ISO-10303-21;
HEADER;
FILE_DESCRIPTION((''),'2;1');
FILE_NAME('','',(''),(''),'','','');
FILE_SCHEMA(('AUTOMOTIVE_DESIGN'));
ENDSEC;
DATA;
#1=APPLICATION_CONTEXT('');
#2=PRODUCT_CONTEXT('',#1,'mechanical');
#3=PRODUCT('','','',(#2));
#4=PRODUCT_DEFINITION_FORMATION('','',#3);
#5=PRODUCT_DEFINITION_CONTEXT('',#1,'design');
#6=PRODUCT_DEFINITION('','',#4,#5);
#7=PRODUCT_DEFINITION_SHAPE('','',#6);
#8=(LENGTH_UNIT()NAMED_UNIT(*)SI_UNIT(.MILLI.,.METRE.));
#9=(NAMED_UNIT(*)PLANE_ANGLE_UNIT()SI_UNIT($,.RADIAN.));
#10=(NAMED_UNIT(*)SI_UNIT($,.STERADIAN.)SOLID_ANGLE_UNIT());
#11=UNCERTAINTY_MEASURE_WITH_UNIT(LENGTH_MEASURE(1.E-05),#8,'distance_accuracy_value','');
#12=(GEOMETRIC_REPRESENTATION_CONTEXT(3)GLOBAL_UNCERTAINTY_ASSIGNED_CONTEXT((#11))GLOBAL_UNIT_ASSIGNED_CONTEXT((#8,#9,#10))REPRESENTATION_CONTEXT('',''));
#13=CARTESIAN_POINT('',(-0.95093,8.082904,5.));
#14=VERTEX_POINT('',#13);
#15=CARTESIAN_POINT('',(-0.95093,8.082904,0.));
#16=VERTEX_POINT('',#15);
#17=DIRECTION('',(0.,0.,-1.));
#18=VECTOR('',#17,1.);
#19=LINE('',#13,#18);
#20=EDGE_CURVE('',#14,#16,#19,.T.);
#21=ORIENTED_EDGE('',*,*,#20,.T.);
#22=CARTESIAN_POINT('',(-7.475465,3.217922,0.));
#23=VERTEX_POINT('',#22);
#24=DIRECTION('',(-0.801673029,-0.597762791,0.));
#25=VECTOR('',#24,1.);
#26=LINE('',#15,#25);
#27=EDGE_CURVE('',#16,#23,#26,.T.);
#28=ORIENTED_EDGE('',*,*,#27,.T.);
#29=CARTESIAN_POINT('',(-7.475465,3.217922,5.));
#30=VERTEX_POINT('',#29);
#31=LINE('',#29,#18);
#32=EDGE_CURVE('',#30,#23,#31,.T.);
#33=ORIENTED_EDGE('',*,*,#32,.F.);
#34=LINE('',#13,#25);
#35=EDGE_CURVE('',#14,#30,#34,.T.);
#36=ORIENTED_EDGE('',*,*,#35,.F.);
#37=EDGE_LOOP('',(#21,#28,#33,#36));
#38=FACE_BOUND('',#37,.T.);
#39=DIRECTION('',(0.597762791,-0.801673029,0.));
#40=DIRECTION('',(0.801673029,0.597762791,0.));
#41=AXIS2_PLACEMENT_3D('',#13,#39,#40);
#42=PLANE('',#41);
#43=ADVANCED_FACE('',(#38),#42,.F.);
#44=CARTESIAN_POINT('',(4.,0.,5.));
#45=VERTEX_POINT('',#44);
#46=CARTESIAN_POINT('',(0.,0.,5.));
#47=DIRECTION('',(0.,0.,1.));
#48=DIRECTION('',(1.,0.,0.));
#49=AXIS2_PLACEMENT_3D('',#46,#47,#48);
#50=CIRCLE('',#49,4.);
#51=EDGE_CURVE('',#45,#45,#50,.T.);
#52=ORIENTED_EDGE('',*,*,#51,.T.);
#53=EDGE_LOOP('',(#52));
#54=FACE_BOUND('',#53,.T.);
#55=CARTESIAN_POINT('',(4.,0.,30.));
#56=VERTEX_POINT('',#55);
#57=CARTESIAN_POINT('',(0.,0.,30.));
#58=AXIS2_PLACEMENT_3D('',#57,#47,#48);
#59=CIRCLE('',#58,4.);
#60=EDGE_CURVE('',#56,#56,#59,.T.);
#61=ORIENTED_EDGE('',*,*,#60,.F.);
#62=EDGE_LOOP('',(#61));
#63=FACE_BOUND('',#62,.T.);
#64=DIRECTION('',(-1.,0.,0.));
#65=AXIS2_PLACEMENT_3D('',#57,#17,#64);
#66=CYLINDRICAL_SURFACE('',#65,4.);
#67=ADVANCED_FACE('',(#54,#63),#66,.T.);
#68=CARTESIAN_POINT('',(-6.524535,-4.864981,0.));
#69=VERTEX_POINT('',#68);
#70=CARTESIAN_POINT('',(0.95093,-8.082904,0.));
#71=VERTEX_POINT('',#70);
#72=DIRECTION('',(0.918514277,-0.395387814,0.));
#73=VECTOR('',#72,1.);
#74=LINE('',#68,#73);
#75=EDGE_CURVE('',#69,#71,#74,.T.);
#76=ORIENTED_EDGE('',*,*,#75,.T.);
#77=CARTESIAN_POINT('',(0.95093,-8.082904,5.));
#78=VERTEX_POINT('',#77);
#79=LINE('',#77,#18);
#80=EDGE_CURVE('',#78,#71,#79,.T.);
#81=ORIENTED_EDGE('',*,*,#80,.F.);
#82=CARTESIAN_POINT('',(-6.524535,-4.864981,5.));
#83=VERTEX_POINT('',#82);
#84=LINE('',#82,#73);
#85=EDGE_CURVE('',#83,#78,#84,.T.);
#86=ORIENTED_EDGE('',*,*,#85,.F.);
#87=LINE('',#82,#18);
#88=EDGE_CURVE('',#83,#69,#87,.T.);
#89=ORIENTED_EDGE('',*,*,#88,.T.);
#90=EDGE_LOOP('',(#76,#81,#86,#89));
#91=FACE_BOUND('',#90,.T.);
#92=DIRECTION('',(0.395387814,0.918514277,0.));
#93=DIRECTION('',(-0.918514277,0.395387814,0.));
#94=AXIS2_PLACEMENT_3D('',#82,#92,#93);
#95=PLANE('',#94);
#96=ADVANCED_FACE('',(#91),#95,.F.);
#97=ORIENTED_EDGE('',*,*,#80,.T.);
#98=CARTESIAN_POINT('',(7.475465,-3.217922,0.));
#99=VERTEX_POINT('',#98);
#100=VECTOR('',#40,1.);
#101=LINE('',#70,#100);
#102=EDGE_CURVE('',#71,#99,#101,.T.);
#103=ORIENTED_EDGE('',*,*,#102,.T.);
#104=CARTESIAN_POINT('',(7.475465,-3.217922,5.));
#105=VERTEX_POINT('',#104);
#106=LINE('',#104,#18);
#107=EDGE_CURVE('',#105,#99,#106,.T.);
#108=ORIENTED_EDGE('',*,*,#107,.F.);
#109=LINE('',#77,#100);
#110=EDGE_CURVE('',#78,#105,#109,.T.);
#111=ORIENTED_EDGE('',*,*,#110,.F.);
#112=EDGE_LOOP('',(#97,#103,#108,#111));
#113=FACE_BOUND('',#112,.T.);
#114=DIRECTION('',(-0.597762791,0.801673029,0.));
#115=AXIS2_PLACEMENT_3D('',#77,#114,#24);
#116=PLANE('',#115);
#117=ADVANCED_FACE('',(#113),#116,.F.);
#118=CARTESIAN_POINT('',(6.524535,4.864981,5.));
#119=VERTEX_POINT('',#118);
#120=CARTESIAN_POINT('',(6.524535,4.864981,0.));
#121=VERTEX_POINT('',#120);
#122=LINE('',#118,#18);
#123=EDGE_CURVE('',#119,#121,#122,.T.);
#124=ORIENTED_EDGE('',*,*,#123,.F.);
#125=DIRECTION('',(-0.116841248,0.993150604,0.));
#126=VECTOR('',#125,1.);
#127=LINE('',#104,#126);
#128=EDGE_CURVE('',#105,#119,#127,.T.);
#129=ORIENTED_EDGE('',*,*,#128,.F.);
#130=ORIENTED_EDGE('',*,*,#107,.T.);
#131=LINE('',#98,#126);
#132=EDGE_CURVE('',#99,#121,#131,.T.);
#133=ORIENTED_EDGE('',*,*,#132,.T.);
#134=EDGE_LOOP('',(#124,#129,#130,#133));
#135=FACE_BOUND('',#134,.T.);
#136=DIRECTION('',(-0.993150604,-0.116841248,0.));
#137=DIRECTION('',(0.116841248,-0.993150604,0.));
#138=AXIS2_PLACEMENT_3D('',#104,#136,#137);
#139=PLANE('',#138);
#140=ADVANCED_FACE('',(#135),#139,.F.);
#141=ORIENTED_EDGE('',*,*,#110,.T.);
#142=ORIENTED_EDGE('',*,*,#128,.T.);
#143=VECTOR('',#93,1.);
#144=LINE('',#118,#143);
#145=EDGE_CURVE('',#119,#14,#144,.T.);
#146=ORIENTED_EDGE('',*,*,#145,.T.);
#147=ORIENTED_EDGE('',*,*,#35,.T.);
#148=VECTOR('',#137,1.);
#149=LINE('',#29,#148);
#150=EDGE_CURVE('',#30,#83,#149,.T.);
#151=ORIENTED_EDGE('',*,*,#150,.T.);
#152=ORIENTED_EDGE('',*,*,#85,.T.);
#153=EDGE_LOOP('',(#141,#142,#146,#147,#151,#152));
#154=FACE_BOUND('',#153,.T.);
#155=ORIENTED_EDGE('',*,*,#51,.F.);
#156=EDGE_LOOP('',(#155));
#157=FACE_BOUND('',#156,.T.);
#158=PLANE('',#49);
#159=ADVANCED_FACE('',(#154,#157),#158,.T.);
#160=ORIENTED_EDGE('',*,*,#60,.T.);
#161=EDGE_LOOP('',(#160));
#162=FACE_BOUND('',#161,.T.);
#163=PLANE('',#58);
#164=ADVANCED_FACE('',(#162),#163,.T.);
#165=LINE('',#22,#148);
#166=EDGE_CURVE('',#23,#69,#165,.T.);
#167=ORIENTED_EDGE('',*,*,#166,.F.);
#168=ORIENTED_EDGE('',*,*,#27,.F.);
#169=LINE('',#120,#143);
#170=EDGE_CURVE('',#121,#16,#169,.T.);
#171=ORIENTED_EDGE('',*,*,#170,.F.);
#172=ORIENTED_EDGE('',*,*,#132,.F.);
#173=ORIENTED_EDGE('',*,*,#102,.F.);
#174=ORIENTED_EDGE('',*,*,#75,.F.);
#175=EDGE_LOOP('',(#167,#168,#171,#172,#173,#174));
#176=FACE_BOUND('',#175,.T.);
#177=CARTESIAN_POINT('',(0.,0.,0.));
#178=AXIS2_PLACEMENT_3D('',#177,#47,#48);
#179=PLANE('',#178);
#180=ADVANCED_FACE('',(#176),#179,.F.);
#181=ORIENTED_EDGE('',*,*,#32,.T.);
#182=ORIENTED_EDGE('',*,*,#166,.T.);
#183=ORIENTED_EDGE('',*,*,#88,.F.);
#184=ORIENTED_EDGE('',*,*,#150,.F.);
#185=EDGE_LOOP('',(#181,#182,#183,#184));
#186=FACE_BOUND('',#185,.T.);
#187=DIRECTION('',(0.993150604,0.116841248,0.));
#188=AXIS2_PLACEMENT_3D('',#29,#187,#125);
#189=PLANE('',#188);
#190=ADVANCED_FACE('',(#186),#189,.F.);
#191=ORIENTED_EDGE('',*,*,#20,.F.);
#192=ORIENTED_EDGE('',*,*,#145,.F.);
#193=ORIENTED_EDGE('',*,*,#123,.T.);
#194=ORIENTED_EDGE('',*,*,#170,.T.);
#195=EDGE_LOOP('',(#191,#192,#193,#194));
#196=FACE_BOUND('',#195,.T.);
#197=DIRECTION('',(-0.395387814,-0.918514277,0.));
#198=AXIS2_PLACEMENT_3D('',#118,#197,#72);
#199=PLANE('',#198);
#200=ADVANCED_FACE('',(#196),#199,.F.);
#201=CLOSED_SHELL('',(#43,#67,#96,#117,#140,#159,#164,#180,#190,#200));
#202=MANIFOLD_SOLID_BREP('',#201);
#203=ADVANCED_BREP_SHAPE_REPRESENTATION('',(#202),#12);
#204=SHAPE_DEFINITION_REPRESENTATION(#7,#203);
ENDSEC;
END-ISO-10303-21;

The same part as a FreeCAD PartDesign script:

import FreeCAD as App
import Part
import Sketcher

V = App.Vector
Q = App.Units.Quantity


def add_polygon(sketch, points):
    """Adds a closed chain of lines whose ends are joined by coincident constraints."""
    first, n = sketch.GeometryCount, len(points)
    for a, b in zip(points, points[1:] + points[:1]):
        sketch.addGeometry(Part.LineSegment(App.Vector(*a, 0), App.Vector(*b, 0)), False)
    for i in range(n):
        sketch.addConstraint(Sketcher.Constraint("Coincident", first + i, 2, first + (i + 1) % n, 1))

doc = App.newDocument("Part")
body = doc.addObject("PartDesign::Body", "Body")

# Sketch on XY plane
sketch1 = body.newObject("Sketcher::SketchObject", "Sketch")
sketch1.AttachmentSupport = (doc.getObject("XY_Plane"), [""])
sketch1.MapMode = "FlatFace"
add_polygon(sketch1, [(-1, 8), (-7, 3), (-7, -5), (1, -8), (7, -3), (7, 5)])  # lines 0-5
sketch1.addConstraint([
    Sketcher.Constraint("Symmetric", 0, 2, 3, 2, -1, 1),
    Sketcher.Constraint("Symmetric", 1, 2, 4, 2, -1, 1),
    Sketcher.Constraint("Symmetric", 2, 2, 5, 2, -1, 1),
    Sketcher.Constraint("Equal", 0, 1),
    Sketcher.Constraint("Equal", 1, 2),
    Sketcher.Constraint("DistanceX", 1, 2, 3, 2, Q("14 mm")),
    Sketcher.Constraint("Distance", 0, Q("8.138649 mm")),
    Sketcher.Constraint("DistanceY", 1, 2, -1, 1, Q("4.864981 mm")),
    Sketcher.Constraint("DistanceX", -1, 1, 2, 2, Q("0.95093 mm")),
])
pad1 = body.newObject("PartDesign::Pad", "Pad")
pad1.Profile = sketch1
pad1.Length = 5

# Sketch on XY plane
sketch2 = body.newObject("Sketcher::SketchObject", "Sketch001")
sketch2.AttachmentSupport = (doc.getObject("XY_Plane"), [""])
sketch2.MapMode = "FlatFace"
sketch2.AttachmentOffset = App.Placement(V(0, 0, 5), App.Rotation())
sketch2.addGeometry(Part.Circle(V(0, 0, 0), V(0, 0, 1), 4), False)
sketch2.addConstraint([
    Sketcher.Constraint("Coincident", 0, 3, -1, 1),
    Sketcher.Constraint("Diameter", 0, Q("8 mm")),
])
pad2 = body.newObject("PartDesign::Pad", "Pad001")
pad2.Profile = sketch2
pad2.Length = 25

doc.recompute()
